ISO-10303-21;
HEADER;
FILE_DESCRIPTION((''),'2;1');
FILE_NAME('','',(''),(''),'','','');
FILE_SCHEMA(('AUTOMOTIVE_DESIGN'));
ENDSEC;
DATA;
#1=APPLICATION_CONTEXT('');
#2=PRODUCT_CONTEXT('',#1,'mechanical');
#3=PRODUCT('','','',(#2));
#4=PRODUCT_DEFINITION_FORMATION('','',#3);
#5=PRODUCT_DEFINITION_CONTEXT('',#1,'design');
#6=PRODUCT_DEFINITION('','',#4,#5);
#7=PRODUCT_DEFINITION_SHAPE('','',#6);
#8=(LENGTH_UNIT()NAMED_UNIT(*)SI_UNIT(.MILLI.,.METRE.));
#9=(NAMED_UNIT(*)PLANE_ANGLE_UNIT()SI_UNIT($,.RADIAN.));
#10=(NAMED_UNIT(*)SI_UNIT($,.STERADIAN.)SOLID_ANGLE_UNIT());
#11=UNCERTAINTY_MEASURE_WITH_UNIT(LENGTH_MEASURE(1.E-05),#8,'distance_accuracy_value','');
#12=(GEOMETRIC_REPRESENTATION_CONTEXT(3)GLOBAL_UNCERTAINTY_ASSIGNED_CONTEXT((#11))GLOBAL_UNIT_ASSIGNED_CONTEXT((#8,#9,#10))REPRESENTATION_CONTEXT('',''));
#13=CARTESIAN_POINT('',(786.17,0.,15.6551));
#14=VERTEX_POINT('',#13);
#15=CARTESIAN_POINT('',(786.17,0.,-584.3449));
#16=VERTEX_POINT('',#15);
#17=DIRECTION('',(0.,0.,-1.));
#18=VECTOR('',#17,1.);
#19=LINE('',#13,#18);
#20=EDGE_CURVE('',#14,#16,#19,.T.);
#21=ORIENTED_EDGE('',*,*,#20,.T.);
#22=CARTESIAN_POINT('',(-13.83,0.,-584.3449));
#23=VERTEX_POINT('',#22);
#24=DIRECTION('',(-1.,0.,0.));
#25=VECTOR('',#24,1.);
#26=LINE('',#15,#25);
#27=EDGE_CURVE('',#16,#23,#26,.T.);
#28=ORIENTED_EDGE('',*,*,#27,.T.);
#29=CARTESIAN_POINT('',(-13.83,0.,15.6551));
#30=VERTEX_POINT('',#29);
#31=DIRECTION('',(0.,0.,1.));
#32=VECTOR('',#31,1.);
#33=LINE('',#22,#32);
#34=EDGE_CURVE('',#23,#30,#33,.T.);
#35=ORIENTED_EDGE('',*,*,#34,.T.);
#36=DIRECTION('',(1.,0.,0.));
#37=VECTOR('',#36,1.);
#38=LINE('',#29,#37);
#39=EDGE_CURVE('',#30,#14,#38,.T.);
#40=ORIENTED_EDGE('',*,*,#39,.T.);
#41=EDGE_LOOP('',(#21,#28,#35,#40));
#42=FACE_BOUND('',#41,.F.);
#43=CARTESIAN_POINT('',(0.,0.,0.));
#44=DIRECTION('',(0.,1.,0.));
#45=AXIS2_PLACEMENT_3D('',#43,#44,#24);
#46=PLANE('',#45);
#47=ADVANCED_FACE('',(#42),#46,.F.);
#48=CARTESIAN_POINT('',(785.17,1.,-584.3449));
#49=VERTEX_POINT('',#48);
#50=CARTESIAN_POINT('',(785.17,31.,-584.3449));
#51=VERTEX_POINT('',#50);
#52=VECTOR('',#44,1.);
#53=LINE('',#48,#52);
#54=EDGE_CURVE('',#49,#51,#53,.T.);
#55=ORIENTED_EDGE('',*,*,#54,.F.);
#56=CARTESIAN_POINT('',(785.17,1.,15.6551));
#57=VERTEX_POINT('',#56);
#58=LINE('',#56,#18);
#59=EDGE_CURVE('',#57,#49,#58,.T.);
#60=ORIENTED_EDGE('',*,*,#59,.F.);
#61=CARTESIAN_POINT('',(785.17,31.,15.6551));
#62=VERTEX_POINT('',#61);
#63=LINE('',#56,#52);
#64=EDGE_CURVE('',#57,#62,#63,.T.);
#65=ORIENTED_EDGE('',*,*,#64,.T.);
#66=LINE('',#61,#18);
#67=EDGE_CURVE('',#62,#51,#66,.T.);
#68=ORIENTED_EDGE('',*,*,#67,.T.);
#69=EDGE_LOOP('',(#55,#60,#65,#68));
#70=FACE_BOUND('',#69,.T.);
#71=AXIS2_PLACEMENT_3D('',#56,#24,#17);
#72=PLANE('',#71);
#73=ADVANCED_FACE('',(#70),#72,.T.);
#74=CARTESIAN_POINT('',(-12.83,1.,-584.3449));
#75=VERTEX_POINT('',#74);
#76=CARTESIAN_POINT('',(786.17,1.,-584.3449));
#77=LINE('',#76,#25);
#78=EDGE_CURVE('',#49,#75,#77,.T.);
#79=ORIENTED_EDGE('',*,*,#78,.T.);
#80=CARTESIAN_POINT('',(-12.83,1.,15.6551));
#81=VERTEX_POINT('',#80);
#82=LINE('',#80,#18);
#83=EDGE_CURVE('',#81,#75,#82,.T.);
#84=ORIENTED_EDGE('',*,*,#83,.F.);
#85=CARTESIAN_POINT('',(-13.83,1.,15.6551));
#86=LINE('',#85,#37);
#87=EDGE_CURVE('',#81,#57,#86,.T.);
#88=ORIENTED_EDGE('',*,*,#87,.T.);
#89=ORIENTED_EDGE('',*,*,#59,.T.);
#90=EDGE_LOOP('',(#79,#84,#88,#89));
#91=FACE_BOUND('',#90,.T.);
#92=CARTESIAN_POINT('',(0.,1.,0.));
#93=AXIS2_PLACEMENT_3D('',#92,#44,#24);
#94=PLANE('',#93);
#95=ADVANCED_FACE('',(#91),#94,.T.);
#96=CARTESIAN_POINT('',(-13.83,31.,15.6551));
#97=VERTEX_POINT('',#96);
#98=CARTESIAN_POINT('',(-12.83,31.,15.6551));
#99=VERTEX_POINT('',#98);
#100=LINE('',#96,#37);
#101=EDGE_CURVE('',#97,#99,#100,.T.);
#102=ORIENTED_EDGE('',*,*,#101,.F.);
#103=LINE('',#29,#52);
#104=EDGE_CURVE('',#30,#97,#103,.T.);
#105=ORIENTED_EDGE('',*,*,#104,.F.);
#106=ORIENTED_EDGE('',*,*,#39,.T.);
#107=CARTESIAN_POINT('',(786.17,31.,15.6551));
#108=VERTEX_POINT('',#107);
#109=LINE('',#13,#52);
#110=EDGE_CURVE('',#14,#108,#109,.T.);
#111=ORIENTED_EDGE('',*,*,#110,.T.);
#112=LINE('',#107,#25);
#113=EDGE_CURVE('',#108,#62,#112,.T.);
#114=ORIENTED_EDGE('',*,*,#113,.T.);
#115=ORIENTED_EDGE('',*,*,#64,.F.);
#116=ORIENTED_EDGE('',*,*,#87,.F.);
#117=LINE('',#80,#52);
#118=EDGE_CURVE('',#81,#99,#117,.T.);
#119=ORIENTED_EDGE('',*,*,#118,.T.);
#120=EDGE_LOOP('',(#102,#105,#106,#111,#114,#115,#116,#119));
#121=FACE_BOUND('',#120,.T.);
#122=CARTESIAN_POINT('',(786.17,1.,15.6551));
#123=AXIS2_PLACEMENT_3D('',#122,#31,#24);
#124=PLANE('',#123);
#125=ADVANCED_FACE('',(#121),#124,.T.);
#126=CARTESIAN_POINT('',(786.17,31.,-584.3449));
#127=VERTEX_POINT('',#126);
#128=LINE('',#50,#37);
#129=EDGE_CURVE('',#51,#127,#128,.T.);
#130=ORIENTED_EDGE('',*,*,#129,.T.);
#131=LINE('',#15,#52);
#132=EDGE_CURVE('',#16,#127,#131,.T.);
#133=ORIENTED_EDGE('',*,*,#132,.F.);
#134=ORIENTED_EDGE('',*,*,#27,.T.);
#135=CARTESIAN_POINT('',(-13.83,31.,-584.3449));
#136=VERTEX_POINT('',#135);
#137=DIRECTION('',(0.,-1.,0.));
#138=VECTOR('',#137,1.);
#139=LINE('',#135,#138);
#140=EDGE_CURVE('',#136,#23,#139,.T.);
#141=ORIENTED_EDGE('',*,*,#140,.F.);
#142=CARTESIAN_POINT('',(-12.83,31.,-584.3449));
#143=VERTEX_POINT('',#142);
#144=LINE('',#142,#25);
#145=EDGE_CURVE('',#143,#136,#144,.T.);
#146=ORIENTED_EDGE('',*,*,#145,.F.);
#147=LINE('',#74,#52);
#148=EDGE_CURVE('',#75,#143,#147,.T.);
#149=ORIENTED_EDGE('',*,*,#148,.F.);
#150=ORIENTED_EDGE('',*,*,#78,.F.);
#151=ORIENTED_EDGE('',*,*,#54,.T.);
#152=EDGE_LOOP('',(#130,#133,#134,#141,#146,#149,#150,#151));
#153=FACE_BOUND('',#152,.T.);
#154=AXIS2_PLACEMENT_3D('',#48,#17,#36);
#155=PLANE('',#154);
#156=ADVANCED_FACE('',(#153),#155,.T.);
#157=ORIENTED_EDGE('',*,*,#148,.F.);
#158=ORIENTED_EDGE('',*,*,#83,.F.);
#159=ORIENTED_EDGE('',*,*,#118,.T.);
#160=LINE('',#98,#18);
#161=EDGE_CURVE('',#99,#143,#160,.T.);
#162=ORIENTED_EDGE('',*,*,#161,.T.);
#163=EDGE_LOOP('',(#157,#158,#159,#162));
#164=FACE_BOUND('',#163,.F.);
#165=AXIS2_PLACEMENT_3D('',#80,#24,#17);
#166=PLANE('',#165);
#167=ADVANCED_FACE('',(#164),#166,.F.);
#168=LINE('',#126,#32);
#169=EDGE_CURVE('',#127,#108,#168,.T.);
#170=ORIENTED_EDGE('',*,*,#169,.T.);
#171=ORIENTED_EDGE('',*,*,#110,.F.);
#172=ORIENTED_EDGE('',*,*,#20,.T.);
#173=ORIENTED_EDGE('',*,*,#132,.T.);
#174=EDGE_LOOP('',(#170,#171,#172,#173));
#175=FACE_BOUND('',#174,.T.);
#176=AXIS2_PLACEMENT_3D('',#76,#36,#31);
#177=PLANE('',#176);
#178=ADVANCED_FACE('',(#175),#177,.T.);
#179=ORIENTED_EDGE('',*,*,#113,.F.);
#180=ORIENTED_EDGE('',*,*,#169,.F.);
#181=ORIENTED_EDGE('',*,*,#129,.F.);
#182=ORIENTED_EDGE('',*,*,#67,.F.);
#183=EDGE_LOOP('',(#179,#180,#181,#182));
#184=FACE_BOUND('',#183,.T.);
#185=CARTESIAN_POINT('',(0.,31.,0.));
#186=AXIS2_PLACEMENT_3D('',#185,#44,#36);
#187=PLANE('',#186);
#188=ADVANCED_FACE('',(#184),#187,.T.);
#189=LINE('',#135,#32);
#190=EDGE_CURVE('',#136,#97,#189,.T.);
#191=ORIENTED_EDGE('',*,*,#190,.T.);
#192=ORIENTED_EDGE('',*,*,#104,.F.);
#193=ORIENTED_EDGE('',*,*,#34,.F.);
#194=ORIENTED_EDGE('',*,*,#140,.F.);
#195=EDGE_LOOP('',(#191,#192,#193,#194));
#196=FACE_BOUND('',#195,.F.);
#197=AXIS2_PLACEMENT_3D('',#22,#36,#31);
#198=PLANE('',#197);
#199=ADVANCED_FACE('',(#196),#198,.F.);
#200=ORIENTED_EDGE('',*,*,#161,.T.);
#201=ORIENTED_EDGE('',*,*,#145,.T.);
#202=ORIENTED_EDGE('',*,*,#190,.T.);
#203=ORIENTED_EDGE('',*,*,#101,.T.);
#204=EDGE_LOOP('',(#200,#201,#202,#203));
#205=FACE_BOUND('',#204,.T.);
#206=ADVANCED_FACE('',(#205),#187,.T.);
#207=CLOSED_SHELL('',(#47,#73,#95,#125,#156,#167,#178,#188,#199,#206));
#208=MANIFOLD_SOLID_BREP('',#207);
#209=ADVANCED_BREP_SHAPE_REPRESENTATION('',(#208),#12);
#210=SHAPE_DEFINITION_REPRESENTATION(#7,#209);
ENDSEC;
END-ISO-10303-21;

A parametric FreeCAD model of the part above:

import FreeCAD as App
import Part
import Sketcher
from FreeCAD import Vector

doc = App.newDocument("Part")
body = doc.addObject("PartDesign::Body", "Body")

sketch1 = body.newObject("Sketcher::SketchObject", "Sketch")
sketch1.AttachmentSupport = (doc.getObject("XZ_Plane"), [""])
sketch1.MapMode = "FlatFace"
sketch1.addGeometry([
    Part.LineSegment(Vector(-14, -584, 0), Vector(-14, 16, 0)),
    Part.LineSegment(Vector(-14, 16, 0), Vector(786, 16, 0)),
    Part.LineSegment(Vector(786, 16, 0), Vector(786, -584, 0)),
    Part.LineSegment(Vector(786, -584, 0), Vector(-14, -584, 0)),
], False)
sketch1.addConstraint([
    Sketcher.Constraint("Coincident", 0, 2, 1, 1),
    Sketcher.Constraint("Coincident", 1, 2, 2, 1),
    Sketcher.Constraint("Coincident", 2, 2, 3, 1),
    Sketcher.Constraint("Coincident", 3, 2, 0, 1),
    Sketcher.Constraint("Vertical", 0),
    Sketcher.Constraint("Horizontal", 1),
    Sketcher.Constraint("Vertical", 2),
    Sketcher.Constraint("Horizontal", 3),
    Sketcher.Constraint("DistanceX", 1, 1, 1, 2, 800.0),
    Sketcher.Constraint("DistanceY", 0, 1, 0, 2, 600.0),
    Sketcher.Constraint("DistanceX", 0, 2, -1, 1, 13.83),
    Sketcher.Constraint("DistanceY", -1, 1, 0, 2, 15.655),
])
pad1 = body.newObject("PartDesign::Pad", "Pad")
pad1.Profile = sketch1
pad1.Length = 1
pad1.Reversed = True

sketch2 = body.newObject("Sketcher::SketchObject", "Sketch001")
sketch2.AttachmentSupport = (doc.getObject("XZ_Plane"), [""])
sketch2.MapMode = "FlatFace"
sketch2.AttachmentOffset = App.Placement(Vector(0, 0, -1), App.Rotation())
sketch2.addGeometry([
    Part.LineSegment(Vector(-12.8, -584.3, 0), Vector(-13.8, -584.3, 0)),
    Part.LineSegment(Vector(-13.8, -584.3, 0), Vector(-13.8, 15.7, 0)),
    Part.LineSegment(Vector(-13.8, 15.7, 0), Vector(-12.8, 15.7, 0)),
    Part.LineSegment(Vector(-12.8, 15.7, 0), Vector(-12.8, -584.3, 0)),
], False)
sketch2.addConstraint([
    Sketcher.Constraint("Coincident", 0, 2, 1, 1),
    Sketcher.Constraint("Coincident", 1, 2, 2, 1),
    Sketcher.Constraint("Coincident", 2, 2, 3, 1),
    Sketcher.Constraint("Coincident", 3, 2, 0, 1),
    Sketcher.Constraint("Horizontal", 0),
    Sketcher.Constraint("Vertical", 1),
    Sketcher.Constraint("Horizontal", 2),
    Sketcher.Constraint("Vertical", 3),
    Sketcher.Constraint("DistanceX", 0, 2, 0, 1, 1.0),
    Sketcher.Constraint("DistanceY", 1, 1, 1, 2, 600.0),
    Sketcher.Constraint("DistanceX", 0, 2, -1, 1, 13.83),
    Sketcher.Constraint("DistanceY", 0, 2, -1, 1, 584.345),
])
pad2 = body.newObject("PartDesign::Pad", "Pad001")
pad2.Profile = sketch2
pad2.Length = 30
pad2.Reversed = True

sketch3 = body.newObject("Sketcher::SketchObject", "Sketch002")
sketch3.AttachmentSupport = (doc.getObject("XZ_Plane"), [""])
sketch3.MapMode = "FlatFace"
sketch3.AttachmentOffset = App.Placement(Vector(0, 0, -1), App.Rotation())
sketch3.addGeometry([
    Part.LineSegment(Vector(785.2, 15.7, 0), Vector(786.2, 15.7, 0)),
    Part.LineSegment(Vector(786.2, 15.7, 0), Vector(786.2, -584.3, 0)),
    Part.LineSegment(Vector(786.2, -584.3, 0), Vector(785.2, -584.3, 0)),
    Part.LineSegment(Vector(785.2, -584.3, 0), Vector(785.2, 15.7, 0)),
], False)
sketch3.addConstraint([
    Sketcher.Constraint("Coincident", 0, 2, 1, 1),
    Sketcher.Constraint("Coincident", 1, 2, 2, 1),
    Sketcher.Constraint("Coincident", 2, 2, 3, 1),
    Sketcher.Constraint("Coincident", 3, 2, 0, 1),
    Sketcher.Constraint("Horizontal", 0),
    Sketcher.Constraint("Vertical", 1),
    Sketcher.Constraint("Horizontal", 2),
    Sketcher.Constraint("Vertical", 3),
    Sketcher.Constraint("DistanceX", 0, 1, 0, 2, 1.0),
    Sketcher.Constraint("DistanceY", 1, 2, 1, 1, 600.0),
    Sketcher.Constraint("DistanceX", -1, 1, 0, 2, 786.17),
    Sketcher.Constraint("DistanceY", -1, 1, 0, 2, 15.655),
])
pad3 = body.newObject("PartDesign::Pad", "Pad002")
pad3.Profile = sketch3
pad3.Length = 30
pad3.Reversed = True

doc.recompute()
